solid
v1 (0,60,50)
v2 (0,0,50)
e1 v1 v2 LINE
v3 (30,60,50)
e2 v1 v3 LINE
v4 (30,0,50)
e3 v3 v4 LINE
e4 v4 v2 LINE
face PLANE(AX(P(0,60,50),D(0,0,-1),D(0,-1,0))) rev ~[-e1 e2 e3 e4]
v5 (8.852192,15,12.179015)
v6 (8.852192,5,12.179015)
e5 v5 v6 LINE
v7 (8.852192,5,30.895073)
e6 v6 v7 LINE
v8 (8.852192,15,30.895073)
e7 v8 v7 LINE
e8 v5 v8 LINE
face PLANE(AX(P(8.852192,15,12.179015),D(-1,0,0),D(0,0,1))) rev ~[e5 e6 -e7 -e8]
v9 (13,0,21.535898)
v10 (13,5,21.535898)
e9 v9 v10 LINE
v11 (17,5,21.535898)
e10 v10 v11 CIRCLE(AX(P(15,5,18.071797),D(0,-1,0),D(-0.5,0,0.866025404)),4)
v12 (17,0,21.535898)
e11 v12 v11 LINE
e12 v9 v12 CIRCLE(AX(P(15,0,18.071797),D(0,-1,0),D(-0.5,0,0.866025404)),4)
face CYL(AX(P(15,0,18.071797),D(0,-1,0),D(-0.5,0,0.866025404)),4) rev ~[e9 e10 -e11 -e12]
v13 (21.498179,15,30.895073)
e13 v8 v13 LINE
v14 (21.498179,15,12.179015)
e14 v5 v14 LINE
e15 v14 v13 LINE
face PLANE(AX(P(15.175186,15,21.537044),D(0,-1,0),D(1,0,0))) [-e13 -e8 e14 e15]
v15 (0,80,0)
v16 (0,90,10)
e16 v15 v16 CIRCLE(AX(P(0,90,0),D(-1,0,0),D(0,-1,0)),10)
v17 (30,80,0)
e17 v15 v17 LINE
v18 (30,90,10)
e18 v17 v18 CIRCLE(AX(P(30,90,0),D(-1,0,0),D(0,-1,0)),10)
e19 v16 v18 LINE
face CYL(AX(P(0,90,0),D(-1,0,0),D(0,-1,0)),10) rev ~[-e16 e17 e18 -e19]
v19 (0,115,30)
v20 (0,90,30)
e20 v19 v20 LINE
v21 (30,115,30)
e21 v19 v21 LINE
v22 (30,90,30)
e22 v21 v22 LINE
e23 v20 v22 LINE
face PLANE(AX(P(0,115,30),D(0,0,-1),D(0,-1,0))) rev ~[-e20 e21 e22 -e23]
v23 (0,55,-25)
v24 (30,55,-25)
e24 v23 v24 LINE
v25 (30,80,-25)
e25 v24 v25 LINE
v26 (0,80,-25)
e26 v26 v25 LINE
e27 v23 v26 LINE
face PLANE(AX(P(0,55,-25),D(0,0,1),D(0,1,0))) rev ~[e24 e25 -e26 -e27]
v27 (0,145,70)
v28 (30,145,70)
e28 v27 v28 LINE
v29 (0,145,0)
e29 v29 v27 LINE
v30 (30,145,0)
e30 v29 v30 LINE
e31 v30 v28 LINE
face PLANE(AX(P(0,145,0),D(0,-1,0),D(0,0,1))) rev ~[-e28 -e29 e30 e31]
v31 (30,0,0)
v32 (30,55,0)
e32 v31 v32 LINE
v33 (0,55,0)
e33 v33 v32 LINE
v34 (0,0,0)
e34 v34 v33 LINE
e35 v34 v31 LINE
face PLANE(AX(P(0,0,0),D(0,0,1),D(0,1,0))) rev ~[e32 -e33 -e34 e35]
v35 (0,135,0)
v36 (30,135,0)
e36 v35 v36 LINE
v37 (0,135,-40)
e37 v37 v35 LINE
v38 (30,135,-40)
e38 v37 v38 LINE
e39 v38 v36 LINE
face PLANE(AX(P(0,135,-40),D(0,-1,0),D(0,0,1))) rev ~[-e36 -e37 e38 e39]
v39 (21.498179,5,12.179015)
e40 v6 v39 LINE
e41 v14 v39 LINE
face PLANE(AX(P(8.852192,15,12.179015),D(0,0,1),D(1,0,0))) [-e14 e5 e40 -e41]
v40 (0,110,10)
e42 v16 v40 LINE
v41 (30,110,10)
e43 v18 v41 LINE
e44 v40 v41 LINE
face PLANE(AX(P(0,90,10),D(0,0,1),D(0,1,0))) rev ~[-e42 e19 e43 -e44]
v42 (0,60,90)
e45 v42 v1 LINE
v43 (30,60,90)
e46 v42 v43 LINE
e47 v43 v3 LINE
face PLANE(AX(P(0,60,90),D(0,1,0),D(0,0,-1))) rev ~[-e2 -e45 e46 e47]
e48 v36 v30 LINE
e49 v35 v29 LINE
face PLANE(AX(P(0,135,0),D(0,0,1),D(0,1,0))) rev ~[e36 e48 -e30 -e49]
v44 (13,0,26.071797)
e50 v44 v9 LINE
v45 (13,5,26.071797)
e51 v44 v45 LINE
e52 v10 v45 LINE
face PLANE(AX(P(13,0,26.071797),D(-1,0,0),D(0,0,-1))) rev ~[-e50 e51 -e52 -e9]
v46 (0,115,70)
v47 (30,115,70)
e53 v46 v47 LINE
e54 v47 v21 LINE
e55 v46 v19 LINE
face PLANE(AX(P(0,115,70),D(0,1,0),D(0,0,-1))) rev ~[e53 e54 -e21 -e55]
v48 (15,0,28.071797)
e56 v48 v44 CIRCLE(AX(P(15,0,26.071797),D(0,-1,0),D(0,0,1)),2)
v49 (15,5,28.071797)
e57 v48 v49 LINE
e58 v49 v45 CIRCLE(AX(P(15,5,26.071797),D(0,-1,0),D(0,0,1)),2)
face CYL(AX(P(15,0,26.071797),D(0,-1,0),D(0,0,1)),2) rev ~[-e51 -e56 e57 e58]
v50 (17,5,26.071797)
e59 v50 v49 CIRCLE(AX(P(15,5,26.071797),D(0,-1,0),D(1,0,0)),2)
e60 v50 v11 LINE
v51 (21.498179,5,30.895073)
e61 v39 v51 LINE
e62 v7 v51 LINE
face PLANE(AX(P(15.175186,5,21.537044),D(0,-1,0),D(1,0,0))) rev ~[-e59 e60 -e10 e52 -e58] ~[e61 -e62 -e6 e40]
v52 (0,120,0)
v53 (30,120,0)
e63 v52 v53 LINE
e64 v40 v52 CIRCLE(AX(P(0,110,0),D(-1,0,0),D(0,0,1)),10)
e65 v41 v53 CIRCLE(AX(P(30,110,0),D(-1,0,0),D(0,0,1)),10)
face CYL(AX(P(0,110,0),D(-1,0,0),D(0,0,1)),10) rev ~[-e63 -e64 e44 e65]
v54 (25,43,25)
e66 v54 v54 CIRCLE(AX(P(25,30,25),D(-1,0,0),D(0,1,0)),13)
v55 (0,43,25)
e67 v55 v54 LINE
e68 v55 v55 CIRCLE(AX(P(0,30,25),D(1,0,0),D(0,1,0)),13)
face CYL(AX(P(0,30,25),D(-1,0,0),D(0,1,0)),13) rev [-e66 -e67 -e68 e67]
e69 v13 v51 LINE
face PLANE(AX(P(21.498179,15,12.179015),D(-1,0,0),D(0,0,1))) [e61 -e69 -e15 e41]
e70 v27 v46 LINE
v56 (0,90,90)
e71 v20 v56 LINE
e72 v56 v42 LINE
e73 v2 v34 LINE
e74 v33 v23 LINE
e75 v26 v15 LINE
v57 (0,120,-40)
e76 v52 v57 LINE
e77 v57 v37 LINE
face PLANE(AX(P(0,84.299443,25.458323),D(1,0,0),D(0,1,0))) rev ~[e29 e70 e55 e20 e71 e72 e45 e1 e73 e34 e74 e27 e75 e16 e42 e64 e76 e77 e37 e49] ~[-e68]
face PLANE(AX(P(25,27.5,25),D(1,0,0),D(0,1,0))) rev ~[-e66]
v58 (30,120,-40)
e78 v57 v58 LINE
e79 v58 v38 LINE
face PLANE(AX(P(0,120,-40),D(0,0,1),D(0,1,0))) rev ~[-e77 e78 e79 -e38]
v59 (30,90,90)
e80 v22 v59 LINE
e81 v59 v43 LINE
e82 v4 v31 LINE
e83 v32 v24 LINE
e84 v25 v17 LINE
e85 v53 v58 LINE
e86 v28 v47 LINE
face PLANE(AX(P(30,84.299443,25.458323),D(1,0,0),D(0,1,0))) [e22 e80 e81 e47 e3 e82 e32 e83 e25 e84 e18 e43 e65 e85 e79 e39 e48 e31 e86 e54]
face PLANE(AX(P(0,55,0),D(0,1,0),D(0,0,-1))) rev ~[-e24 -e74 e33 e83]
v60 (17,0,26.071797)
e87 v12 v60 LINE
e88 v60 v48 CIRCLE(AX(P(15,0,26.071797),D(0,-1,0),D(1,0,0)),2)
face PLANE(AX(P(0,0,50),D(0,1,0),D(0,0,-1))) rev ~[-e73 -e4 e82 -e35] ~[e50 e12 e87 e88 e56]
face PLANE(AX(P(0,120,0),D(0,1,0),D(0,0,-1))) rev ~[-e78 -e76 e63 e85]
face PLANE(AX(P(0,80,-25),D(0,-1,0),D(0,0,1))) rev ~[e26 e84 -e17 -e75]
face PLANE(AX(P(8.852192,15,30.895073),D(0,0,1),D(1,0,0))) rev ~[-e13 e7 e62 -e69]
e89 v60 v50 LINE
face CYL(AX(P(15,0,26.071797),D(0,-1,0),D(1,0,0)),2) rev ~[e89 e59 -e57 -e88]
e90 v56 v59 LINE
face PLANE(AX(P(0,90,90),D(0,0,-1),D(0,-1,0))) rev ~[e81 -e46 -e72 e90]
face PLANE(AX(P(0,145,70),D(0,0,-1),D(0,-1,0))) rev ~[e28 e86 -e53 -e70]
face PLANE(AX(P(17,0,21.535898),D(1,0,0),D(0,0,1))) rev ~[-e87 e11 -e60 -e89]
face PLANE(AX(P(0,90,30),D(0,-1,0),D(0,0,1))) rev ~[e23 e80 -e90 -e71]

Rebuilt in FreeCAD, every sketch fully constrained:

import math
import FreeCAD as App
import Part
import Sketcher
from FreeCAD import Vector


def add_polygon(sketch, points):
    """Adds a closed chain of lines whose ends are joined by coincident constraints."""
    first, n = sketch.GeometryCount, len(points)
    for a, b in zip(points, points[1:] + points[:1]):
        sketch.addGeometry(Part.LineSegment(App.Vector(*a, 0), App.Vector(*b, 0)), False)
    for i in range(n):
        sketch.addConstraint(Sketcher.Constraint("Coincident", first + i, 2, first + (i + 1) % n, 1))

doc = App.newDocument("Part")
params = doc.addObject("Spreadsheet::Sheet", "Params")
for row, (alias, value) in enumerate([
    ("sketch1_diameter", "26 mm"),
    ("sketch1_radius", "10 mm"),
    ("sketch1_width", "55 mm"),
    ("sketch1_width2", "25 mm"),
    ("sketch1_width3", "20 mm"),
    ("pad1_length", "30 mm"),
    ("sketch2_width", "55 mm"),
    ("sketch2_height", "50 mm"),
    ("pad2_length", "5 mm"),
    ("sketch3_radius", "4 mm"),
    ("sketch3_radius2", "2 mm"),
    ("pocket1_length", "15 mm"),
    ("pocket2_length", "10 mm"),
], start=1):
    params.set(f"A{row}", alias)
    params.set(f"B{row}", "=" + value)
    params.setAlias(f"B{row}", alias)

body = doc.addObject("PartDesign::Body", "Body")

sketch1 = body.newObject("Sketcher::SketchObject", "Sketch")
sketch1.AttachmentSupport = (doc.getObject("YZ_Plane"), [""])
sketch1.MapMode = "FlatFace"
sketch1.addGeometry([
    Part.LineSegment(Vector(0, 50, 0), Vector(0, 0, 0)),
    Part.LineSegment(Vector(0, 0, 0), Vector(55, 0, 0)),
    Part.LineSegment(Vector(55, 0, 0), Vector(55, -25, 0)),
    Part.LineSegment(Vector(55, -25, 0), Vector(80, -25, 0)),
    Part.LineSegment(Vector(80, -25, 0), Vector(80, 0, 0)),
    Part.ArcOfCircle(Part.Circle(Vector(90, 0, 0), Vector(0, 0, 1), 10), math.radians(90), math.radians(180)),
    Part.LineSegment(Vector(90, 10, 0), Vector(110, 10, 0)),
    Part.ArcOfCircle(Part.Circle(Vector(110, 0, 0), Vector(0, 0, 1), 10), math.radians(0), math.radians(90)),
    Part.LineSegment(Vector(120, 0, 0), Vector(120, -40, 0)),
    Part.LineSegment(Vector(120, -40, 0), Vector(135, -40, 0)),
    Part.LineSegment(Vector(135, -40, 0), Vector(135, 0, 0)),
    Part.LineSegment(Vector(135, 0, 0), Vector(145, 0, 0)),
    Part.LineSegment(Vector(145, 0, 0), Vector(145, 70, 0)),
    Part.LineSegment(Vector(145, 70, 0), Vector(115, 70, 0)),
    Part.LineSegment(Vector(115, 70, 0), Vector(115, 30, 0)),
    Part.LineSegment(Vector(115, 30, 0), Vector(90, 30, 0)),
    Part.LineSegment(Vector(90, 30, 0), Vector(90, 90, 0)),
    Part.LineSegment(Vector(90, 90, 0), Vector(60, 90, 0)),
    Part.LineSegment(Vector(60, 90, 0), Vector(60, 50, 0)),
    Part.LineSegment(Vector(60, 50, 0), Vector(0, 50, 0)),
    Part.Circle(Vector(30, 25, 0), Vector(0, 0, 1), 13),
], False)
sketch1.addConstraint([
    Sketcher.Constraint("Coincident", 0, 2, 1, 1),
    Sketcher.Constraint("Coincident", 1, 2, 2, 1),
    Sketcher.Constraint("Coincident", 2, 2, 3, 1),
    Sketcher.Constraint("Coincident", 3, 2, 4, 1),
    Sketcher.Constraint("Tangent", 4, 2, 5, 2),
    Sketcher.Constraint("Tangent", 5, 1, 6, 1),
    Sketcher.Constraint("Tangent", 6, 2, 7, 2),
    Sketcher.Constraint("Tangent", 7, 1, 8, 1),
    Sketcher.Constraint("Coincident", 8, 2, 9, 1),
    Sketcher.Constraint("Coincident", 9, 2, 10, 1),
    Sketcher.Constraint("Coincident", 10, 2, 11, 1),
    Sketcher.Constraint("Coincident", 11, 2, 12, 1),
    Sketcher.Constraint("Coincident", 12, 2, 13, 1),
    Sketcher.Constraint("Coincident", 13, 2, 14, 1),
    Sketcher.Constraint("Coincident", 14, 2, 15, 1),
    Sketcher.Constraint("Coincident", 15, 2, 16, 1),
    Sketcher.Constraint("Coincident", 16, 2, 17, 1),
    Sketcher.Constraint("Coincident", 17, 2, 18, 1),
    Sketcher.Constraint("Coincident", 18, 2, 19, 1),
    Sketcher.Constraint("Coincident", 19, 2, 0, 1),
    Sketcher.Constraint("Vertical", 0),
    Sketcher.Constraint("Horizontal", 1),
    Sketcher.Constraint("Vertical", 2),
    Sketcher.Constraint("Horizontal", 3),
    Sketcher.Constraint("Vertical", 4),
    Sketcher.Constraint("Horizontal", 6),
    Sketcher.Constraint("Vertical", 8),
    Sketcher.Constraint("Horizontal", 9),
    Sketcher.Constraint("Vertical", 10),
    Sketcher.Constraint("Horizontal", 11),
    Sketcher.Constraint("Vertical", 12),
    Sketcher.Constraint("Horizontal", 13),
    Sketcher.Constraint("Vertical", 14),
    Sketcher.Constraint("Horizontal", 15),
    Sketcher.Constraint("Vertical", 16),
    Sketcher.Constraint("Horizontal", 17),
    Sketcher.Constraint("Vertical", 18),
    Sketcher.Constraint("Horizontal", 19),
    Sketcher.Constraint("Coincident", 0, 2, -1, 1),
    Sketcher.Constraint("Equal", 5, 7),
    Sketcher.Constraint("PointOnObject", 5, 3, -1),
    Sketcher.Constraint("PointOnObject", 10, 2, -1),
    Sketcher.Constraint("Vertical", 5, 1, 15, 2),
    Sketcher.Constraint("Equal", 3, 15),
    Sketcher.Constraint("Equal", 13, 17),
    Sketcher.Constraint("Equal", 15, 2),
    Sketcher.Constraint("Equal", 10, 14),
    Sketcher.Constraint("Equal", 19, 16),
    Sketcher.Constraint("Equal", 14, 18),
    Sketcher.Constraint("Diameter", 20, 26.0),
    Sketcher.Constraint("Radius", 5, 10.0),
    Sketcher.Constraint("DistanceX", 1, 1, 1, 2, 55.0),
    Sketcher.Constraint("DistanceX", 3, 1, 3, 2, 25.0),
    Sketcher.Constraint("DistanceX", 6, 1, 6, 2, 20.0),
    Sketcher.Constraint("DistanceX", 9, 1, 9, 2, 15.0),
    Sketcher.Constraint("DistanceX", 11, 1, 11, 2, 10.0),
    Sketcher.Constraint("DistanceY", 0, 2, 0, 1, 50.0),
    Sketcher.Constraint("DistanceY", 8, 2, 8, 1, 40.0),
    Sketcher.Constraint("DistanceX", -1, 1, 20, 3, 30.0),
    Sketcher.Constraint("DistanceY", -1, 1, 20, 3, 25.0),
])
sketch1.setExpression("Constraints[49]", "Params.sketch1_diameter")
sketch1.setExpression("Constraints[50]", "Params.sketch1_radius")
sketch1.setExpression("Constraints[51]", "Params.sketch1_width")
sketch1.setExpression("Constraints[52]", "Params.sketch1_width2")
sketch1.setExpression("Constraints[53]", "Params.sketch1_width3")
pad1 = body.newObject("PartDesign::Pad", "Pad")
pad1.Profile = sketch1
pad1.setExpression("Length", "Params.pad1_length")

sketch2 = body.newObject("Sketcher::SketchObject", "Sketch001")
sketch2.AttachmentSupport = (doc.getObject("YZ_Plane"), [""])
sketch2.MapMode = "FlatFace"
sketch2.AttachmentOffset = App.Placement(Vector(0, 0, 30), App.Rotation())
add_polygon(sketch2, [(0, 50), (0, 0), (55, 0), (55, 50)])
sketch2.addConstraint([
    Sketcher.Constraint("Vertical", 0),
    Sketcher.Constraint("Horizontal", 1),
    Sketcher.Constraint("Vertical", 2),
    Sketcher.Constraint("Horizontal", 3),
    Sketcher.Constraint("Coincident", 0, 2, -1, 1),
    Sketcher.Constraint("DistanceX", 1, 1, 1, 2, 55.0),
    Sketcher.Constraint("DistanceY", 0, 2, 0, 1, 50.0),
])
sketch2.setExpression("Constraints[9]", "Params.sketch2_width")
sketch2.setExpression("Constraints[10]", "Params.sketch2_height")
pad2 = body.newObject("PartDesign::Pad", "Pad001")
pad2.Profile = sketch2
pad2.setExpression("Length", "Params.pad2_length")
pad2.Reversed = True

sketch3 = body.newObject("Sketcher::SketchObject", "Sketch002")
sketch3.AttachmentSupport = (doc.getObject("XZ_Plane"), [""])
sketch3.MapMode = "FlatFace"
sketch3.addGeometry([
    Part.LineSegment(Vector(13, 26.1, 0), Vector(13, 21.5, 0)),
    Part.ArcOfCircle(Part.Circle(Vector(15, 18.1, 0), Vector(0, 0, 1), 4), math.radians(120), math.radians(420)),
    Part.LineSegment(Vector(17, 21.5, 0), Vector(17, 26.1, 0)),
    Part.ArcOfCircle(Part.Circle(Vector(15, 26.1, 0), Vector(0, 0, 1), 2), math.radians(0), math.radians(90)),
    Part.ArcOfCircle(Part.Circle(Vector(15, 26.1, 0), Vector(0, 0, 1), 2), math.radians(90), math.radians(180)),
], False)
sketch3.addConstraint([
    Sketcher.Constraint("Coincident", 0, 2, 1, 1),
    Sketcher.Constraint("Coincident", 1, 2, 2, 1),
    Sketcher.Constraint("Tangent", 2, 2, 3, 1),
    Sketcher.Constraint("Tangent", 3, 2, 4, 1),
    Sketcher.Constraint("Tangent", 4, 2, 0, 1),
    Sketcher.Constraint("Vertical", 0),
    Sketcher.Constraint("Vertical", 2),
    Sketcher.Constraint("Equal", 3, 4),
    Sketcher.Constraint("Horizontal", 0, 2, 1, 2),
    Sketcher.Constraint("Vertical", 4, 3, 3, 2),
    Sketcher.Constraint("Radius", 1, 4.0),
    Sketcher.Constraint("Radius", 3, 2.0),
    Sketcher.Constraint("DistanceX", -1, 1, 1, 3, 15.0),
    Sketcher.Constraint("DistanceY", 1, 3, 3, 3, 8.0),
    Sketcher.Constraint("DistanceY", -1, 1, 0, 2, 21.535898),
])
sketch3.setExpression("Constraints[10]", "Params.sketch3_radius")
sketch3.setExpression("Constraints[11]", "Params.sketch3_radius2")
pocket1 = body.newObject("PartDesign::Pocket", "Pocket")
pocket1.Profile = sketch3
pocket1.setExpression("Length", "Params.pocket1_length")

sketch4 = body.newObject("Sketcher::SketchObject", "Sketch003")
sketch4.AttachmentSupport = (doc.getObject("XZ_Plane"), [""])
sketch4.MapMode = "FlatFace"
sketch4.AttachmentOffset = App.Placement(Vector(0, 0, -15), App.Rotation())
add_polygon(sketch4, [(9, 31), (9, 12), (21, 12), (21, 31)])
sketch4.addConstraint([
    Sketcher.Constraint("Vertical", 0),
    Sketcher.Constraint("Horizontal", 1),
    Sketcher.Constraint("Vertical", 2),
    Sketcher.Constraint("Horizontal", 3),
    Sketcher.Constraint("DistanceX", 1, 1, 1, 2, 12.645987),
    Sketcher.Constraint("DistanceY", 0, 2, 0, 1, 18.716058),
    Sketcher.Constraint("DistanceX", -1, 1, 1, 2, 21.498179),
    Sketcher.Constraint("DistanceY", -1, 1, 0, 2, 12.179015),
])
pocket2 = body.newObject("PartDesign::Pocket", "Pocket001")
pocket2.Profile = sketch4
pocket2.setExpression("Length", "Params.pocket2_length")
pocket2.Reversed = True

doc.recompute()
